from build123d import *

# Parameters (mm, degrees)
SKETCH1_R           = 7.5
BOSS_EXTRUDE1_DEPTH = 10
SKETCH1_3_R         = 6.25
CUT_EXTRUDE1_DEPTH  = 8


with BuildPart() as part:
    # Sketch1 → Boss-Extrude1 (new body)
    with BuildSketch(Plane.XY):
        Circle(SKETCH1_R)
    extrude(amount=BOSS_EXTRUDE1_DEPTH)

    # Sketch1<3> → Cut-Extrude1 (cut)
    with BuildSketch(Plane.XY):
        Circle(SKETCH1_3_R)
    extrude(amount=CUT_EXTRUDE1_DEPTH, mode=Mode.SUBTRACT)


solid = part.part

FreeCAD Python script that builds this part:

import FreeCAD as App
import Part
import Sketcher

doc = App.newDocument("Part")
body = doc.addObject("PartDesign::Body", "Body")

sketch1 = doc.addObject("Sketcher::SketchObject", "Sketch")
body.addObject(sketch1)
sketch1.AttachmentSupport = (doc.XY_Plane, [""])
sketch1.MapMode = "FlatFace"
sketch1.addGeometry(Part.Circle(App.Vector(0, 0, 0), App.Vector(0, 0, 1), 8), False)
sketch1.addConstraint([
    Sketcher.Constraint("Coincident", 0, 3, -1, 1),
    Sketcher.Constraint("Diameter", 0, 15.0),
])
pad1 = doc.addObject("PartDesign::Pad", "Pad")
body.addObject(pad1)
pad1.Profile = sketch1
pad1.Length = 10

sketch2 = doc.addObject("Sketcher::SketchObject", "Sketch001")
body.addObject(sketch2)
sketch2.AttachmentSupport = (doc.XY_Plane, [""])
sketch2.MapMode = "FlatFace"
sketch2.addGeometry(Part.Circle(App.Vector(0, 0, 0), App.Vector(0, 0, 1), 6), False)
sketch2.addConstraint([
    Sketcher.Constraint("Coincident", 0, 3, -1, 1),
    Sketcher.Constraint("Diameter", 0, 12.5),
])
pocket1 = doc.addObject("PartDesign::Pocket", "Pocket")
body.addObject(pocket1)
pocket1.Profile = sketch2
pocket1.Length = 8
pocket1.Reversed = True

doc.recompute()
